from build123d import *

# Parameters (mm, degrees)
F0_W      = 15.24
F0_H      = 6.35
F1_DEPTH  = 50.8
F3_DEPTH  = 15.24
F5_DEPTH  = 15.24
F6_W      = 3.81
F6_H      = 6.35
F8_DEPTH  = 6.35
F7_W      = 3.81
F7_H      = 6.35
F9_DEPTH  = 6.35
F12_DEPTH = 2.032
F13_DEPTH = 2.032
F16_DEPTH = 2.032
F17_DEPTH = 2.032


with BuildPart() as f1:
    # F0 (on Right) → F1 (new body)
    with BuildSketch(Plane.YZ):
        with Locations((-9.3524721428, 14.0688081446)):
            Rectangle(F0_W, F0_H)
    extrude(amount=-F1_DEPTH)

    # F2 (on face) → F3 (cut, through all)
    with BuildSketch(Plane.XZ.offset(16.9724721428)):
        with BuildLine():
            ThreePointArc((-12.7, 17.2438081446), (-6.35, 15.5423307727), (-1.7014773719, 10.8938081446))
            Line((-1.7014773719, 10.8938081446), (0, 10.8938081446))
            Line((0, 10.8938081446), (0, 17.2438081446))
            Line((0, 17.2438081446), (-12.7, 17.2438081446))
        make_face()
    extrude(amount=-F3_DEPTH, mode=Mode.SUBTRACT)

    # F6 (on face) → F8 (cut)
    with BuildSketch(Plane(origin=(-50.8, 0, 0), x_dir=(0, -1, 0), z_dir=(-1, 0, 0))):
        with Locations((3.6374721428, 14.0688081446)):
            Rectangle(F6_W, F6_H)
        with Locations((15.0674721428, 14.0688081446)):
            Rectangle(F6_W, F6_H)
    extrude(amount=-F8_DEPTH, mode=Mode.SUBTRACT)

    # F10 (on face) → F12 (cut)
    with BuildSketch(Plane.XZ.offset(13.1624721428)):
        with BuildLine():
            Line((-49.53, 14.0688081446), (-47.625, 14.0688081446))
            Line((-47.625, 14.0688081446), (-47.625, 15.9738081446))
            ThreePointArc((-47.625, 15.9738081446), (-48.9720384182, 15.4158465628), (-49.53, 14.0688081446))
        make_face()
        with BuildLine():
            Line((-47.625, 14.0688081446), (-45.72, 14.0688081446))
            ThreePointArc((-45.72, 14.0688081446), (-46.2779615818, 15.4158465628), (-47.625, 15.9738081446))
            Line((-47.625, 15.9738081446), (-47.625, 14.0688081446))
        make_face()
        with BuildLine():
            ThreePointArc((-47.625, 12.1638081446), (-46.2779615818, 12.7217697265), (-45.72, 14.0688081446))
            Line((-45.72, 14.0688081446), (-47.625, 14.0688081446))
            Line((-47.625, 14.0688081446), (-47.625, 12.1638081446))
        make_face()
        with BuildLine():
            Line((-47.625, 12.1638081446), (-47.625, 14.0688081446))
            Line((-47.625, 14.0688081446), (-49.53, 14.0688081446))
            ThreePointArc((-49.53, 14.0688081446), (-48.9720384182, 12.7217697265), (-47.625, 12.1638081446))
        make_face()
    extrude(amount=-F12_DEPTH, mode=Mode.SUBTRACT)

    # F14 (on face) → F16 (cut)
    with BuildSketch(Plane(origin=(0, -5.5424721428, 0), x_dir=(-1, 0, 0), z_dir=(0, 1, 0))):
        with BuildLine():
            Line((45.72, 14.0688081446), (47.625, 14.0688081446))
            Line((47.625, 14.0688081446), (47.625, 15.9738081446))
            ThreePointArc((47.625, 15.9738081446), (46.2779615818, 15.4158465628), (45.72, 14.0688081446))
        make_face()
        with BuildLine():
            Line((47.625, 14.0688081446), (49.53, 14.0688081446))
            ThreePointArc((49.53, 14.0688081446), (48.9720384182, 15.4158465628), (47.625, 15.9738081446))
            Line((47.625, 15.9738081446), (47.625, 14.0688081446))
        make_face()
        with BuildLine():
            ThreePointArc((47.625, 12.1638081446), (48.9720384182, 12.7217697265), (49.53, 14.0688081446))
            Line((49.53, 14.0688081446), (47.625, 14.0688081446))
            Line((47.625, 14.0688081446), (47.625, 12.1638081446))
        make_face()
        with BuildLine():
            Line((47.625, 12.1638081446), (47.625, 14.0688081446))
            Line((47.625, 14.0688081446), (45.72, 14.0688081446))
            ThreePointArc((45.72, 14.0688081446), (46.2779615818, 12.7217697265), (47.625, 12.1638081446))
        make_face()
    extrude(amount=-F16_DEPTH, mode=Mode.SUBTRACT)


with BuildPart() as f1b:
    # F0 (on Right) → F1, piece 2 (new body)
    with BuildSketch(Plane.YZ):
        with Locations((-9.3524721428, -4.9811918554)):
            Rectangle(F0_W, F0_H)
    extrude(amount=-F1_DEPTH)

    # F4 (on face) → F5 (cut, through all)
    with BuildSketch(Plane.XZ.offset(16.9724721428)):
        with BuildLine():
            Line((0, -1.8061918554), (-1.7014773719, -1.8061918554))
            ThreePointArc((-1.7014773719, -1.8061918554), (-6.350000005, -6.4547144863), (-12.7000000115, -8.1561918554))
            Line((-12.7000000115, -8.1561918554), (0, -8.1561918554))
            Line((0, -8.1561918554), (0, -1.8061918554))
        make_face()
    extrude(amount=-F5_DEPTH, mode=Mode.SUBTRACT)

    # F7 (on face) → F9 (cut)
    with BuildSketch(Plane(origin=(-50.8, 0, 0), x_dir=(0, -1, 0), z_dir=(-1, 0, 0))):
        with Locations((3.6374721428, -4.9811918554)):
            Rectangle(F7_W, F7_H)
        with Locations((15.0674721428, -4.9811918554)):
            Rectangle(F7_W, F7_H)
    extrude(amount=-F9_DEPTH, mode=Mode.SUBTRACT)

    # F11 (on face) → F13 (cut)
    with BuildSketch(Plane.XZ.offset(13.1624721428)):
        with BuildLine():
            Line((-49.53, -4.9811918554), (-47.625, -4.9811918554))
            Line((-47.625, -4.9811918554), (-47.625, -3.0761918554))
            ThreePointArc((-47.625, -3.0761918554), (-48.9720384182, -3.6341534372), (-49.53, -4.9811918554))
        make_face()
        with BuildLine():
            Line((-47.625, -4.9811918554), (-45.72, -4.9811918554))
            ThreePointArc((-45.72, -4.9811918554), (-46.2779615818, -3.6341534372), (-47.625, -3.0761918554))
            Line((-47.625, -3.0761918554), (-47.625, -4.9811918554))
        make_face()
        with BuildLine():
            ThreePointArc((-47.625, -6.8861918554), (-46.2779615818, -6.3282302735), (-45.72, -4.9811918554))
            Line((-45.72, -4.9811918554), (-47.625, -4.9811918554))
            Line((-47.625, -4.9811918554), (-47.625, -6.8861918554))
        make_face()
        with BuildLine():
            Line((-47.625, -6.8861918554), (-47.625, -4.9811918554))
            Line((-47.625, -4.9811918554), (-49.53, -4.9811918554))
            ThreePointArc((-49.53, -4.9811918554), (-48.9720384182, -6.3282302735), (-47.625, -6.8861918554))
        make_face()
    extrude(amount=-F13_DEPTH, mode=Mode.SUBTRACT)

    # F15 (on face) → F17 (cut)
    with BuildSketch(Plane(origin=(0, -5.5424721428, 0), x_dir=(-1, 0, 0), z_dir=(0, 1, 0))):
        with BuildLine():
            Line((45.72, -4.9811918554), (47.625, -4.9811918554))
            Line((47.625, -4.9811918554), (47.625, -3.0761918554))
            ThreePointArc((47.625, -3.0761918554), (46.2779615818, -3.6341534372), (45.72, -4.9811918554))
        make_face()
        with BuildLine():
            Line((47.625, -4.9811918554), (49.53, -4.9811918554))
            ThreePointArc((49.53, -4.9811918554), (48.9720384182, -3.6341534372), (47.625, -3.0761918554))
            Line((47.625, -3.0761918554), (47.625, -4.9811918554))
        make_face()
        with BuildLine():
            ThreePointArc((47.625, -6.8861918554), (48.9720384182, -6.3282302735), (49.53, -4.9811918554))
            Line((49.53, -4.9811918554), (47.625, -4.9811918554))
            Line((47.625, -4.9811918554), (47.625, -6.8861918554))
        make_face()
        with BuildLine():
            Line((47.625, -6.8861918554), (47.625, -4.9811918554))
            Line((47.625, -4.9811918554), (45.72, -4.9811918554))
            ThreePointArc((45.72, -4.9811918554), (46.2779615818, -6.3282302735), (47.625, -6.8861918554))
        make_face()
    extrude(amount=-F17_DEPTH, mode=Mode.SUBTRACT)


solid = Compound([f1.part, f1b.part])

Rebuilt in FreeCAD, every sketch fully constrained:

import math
import FreeCAD as App
import Part
import Sketcher

V = App.Vector
Q = App.Units.Quantity

doc = App.newDocument("Part")
body = doc.addObject("PartDesign::Body", "Body")

sketch1 = body.newObject("Sketcher::SketchObject", "Sketch")
sketch1.AttachmentSupport = (doc.getObject("YZ_Plane"), [""])
sketch1.MapMode = "FlatFace"
sketch1.addGeometry(Part.LineSegment(V(-17, 17, 0), V(-17, 11, 0)), False)
sketch1.addGeometry(Part.LineSegment(V(-17, 11, 0), V(-2, 11, 0)), False)
sketch1.addGeometry(Part.LineSegment(V(-2, 11, 0), V(-2, 17, 0)), False)
sketch1.addGeometry(Part.LineSegment(V(-2, 17, 0), V(-17, 17, 0)), False)
sketch1.addConstraint(Sketcher.Constraint("Coincident", 0, 2, 1, 1))
sketch1.addConstraint(Sketcher.Constraint("Coincident", 1, 2, 2, 1))
sketch1.addConstraint(Sketcher.Constraint("Coincident", 2, 2, 3, 1))
sketch1.addConstraint(Sketcher.Constraint("Coincident", 3, 2, 0, 1))
sketch1.addConstraint(Sketcher.Constraint("Vertical", 0))
sketch1.addConstraint(Sketcher.Constraint("Horizontal", 1))
sketch1.addConstraint(Sketcher.Constraint("Vertical", 2))
sketch1.addConstraint(Sketcher.Constraint("Horizontal", 3))
sketch1.addConstraint(Sketcher.Constraint("DistanceX", 1, 1, 1, 2, Q("0.6 in")))
sketch1.addConstraint(Sketcher.Constraint("DistanceY", 0, 2, 0, 1, Q("0.25 in")))
sketch1.addConstraint(Sketcher.Constraint("DistanceY", -1, 1, 0, 2, Q("10.893808 mm")))
sketch1.addConstraint(Sketcher.Constraint("DistanceX", 0, 2, -1, 1, Q("16.972472 mm")))
pad1 = body.newObject("PartDesign::Pad", "Pad")
pad1.Profile = sketch1
pad1.Length = Q("2 in")
pad1.Reversed = True

sketch2 = body.newObject("Sketcher::SketchObject", "Sketch001")
sketch2.AttachmentSupport = (doc.getObject("XZ_Plane"), [""])
sketch2.MapMode = "FlatFace"
sketch2.AttachmentOffset = App.Placement(V(0, 0, 16.972472), App.Rotation())
sketch2.addGeometry(Part.ArcOfCircle(Part.Circle(V(-12.7, 4.5, 0), V(0, 0, 1), 12.7), math.radians(30), math.radians(90)), False)
sketch2.addGeometry(Part.LineSegment(V(-1.7, 10.9, 0), V(0, 10.9, 0)), False)
sketch2.addGeometry(Part.LineSegment(V(0, 10.9, 0), V(0, 17.2, 0)), False)
sketch2.addGeometry(Part.LineSegment(V(0, 17.2, 0), V(-12.7, 17.2, 0)), False)
sketch2.addConstraint(Sketcher.Constraint("Coincident", 0, 1, 1, 1))
sketch2.addConstraint(Sketcher.Constraint("Coincident", 1, 2, 2, 1))
sketch2.addConstraint(Sketcher.Constraint("Coincident", 2, 2, 3, 1))
sketch2.addConstraint(Sketcher.Constraint("Tangent", 3, 2, 0, 2))
sketch2.addConstraint(Sketcher.Constraint("Horizontal", 1))
sketch2.addConstraint(Sketcher.Constraint("Vertical", 2))
sketch2.addConstraint(Sketcher.Constraint("Horizontal", 3))
sketch2.addConstraint(Sketcher.Constraint("PointOnObject", 1, 2, -2))
sketch2.addConstraint(Sketcher.Constraint("Radius", 0, Q("0.5 in")))
sketch2.addConstraint(Sketcher.Constraint("DistanceX", 3, 2, 3, 1, Q("0.5 in")))
sketch2.addConstraint(Sketcher.Constraint("DistanceY", 2, 1, 2, 2, Q("0.25 in")))
sketch2.addConstraint(Sketcher.Constraint("DistanceY", -1, 1, 0, 3, Q("4.543808 mm")))
pocket1 = body.newObject("PartDesign::Pocket", "Pocket")
pocket1.Profile = sketch2
pocket1.Type = "ThroughAll"

sketch3 = body.newObject("Sketcher::SketchObject", "Sketch002")
sketch3.AttachmentSupport = (doc.getObject("YZ_Plane"), [""])
sketch3.MapMode = "FlatFace"
sketch3.AttachmentOffset = App.Placement(V(0, 0, -2 * 25.4), App.Rotation())
sketch3.addGeometry(Part.LineSegment(V(-1.7, 17.2, 0), V(-1.7, 10.9, 0)), False)
sketch3.addGeometry(Part.LineSegment(V(-1.7, 10.9, 0), V(-5.5, 10.9, 0)), False)
sketch3.addGeometry(Part.LineSegment(V(-5.5, 10.9, 0), V(-5.5, 17.2, 0)), False)
sketch3.addGeometry(Part.LineSegment(V(-5.5, 17.2, 0), V(-1.7, 17.2, 0)), False)
sketch3.addGeometry(Part.LineSegment(V(-13.2, 17.2, 0), V(-13.2, 10.9, 0)), False)
sketch3.addGeometry(Part.LineSegment(V(-13.2, 10.9, 0), V(-17, 10.9, 0)), False)
sketch3.addGeometry(Part.LineSegment(V(-17, 10.9, 0), V(-17, 17.2, 0)), False)
sketch3.addGeometry(Part.LineSegment(V(-17, 17.2, 0), V(-13.2, 17.2, 0)), False)
sketch3.addConstraint(Sketcher.Constraint("Coincident", 0, 2, 1, 1))
sketch3.addConstraint(Sketcher.Constraint("Coincident", 1, 2, 2, 1))
sketch3.addConstraint(Sketcher.Constraint("Coincident", 2, 2, 3, 1))
sketch3.addConstraint(Sketcher.Constraint("Coincident", 3, 2, 0, 1))
sketch3.addConstraint(Sketcher.Constraint("Coincident", 4, 2, 5, 1))
sketch3.addConstraint(Sketcher.Constraint("Coincident", 5, 2, 6, 1))
sketch3.addConstraint(Sketcher.Constraint("Coincident", 6, 2, 7, 1))
sketch3.addConstraint(Sketcher.Constraint("Coincident", 7, 2, 4, 1))
sketch3.addConstraint(Sketcher.Constraint("Vertical", 0))
sketch3.addConstraint(Sketcher.Constraint("Horizontal", 1))
sketch3.addConstraint(Sketcher.Constraint("Vertical", 2))
sketch3.addConstraint(Sketcher.Constraint("Horizontal", 3))
sketch3.addConstraint(Sketcher.Constraint("Vertical", 4))
sketch3.addConstraint(Sketcher.Constraint("Horizontal", 5))
sketch3.addConstraint(Sketcher.Constraint("Vertical", 6))
sketch3.addConstraint(Sketcher.Constraint("Horizontal", 7))
sketch3.addConstraint(Sketcher.Constraint("Horizontal", 1, 2, 4, 2))
sketch3.addConstraint(Sketcher.Constraint("Horizontal", 3, 2, 6, 2))
sketch3.addConstraint(Sketcher.Constraint("Equal", 3, 5))
sketch3.addConstraint(Sketcher.Constraint("DistanceX", 1, 2, 1, 1, Q("0.15 in")))
sketch3.addConstraint(Sketcher.Constraint("DistanceY", 0, 2, 0, 1, Q("0.25 in")))
sketch3.addConstraint(Sketcher.Constraint("DistanceX", 4, 2, 1, 2, Q("0.3 in")))
sketch3.addConstraint(Sketcher.Constraint("DistanceY", -1, 1, 0, 2, Q("10.893808 mm")))
sketch3.addConstraint(Sketcher.Constraint("DistanceX", 0, 2, -1, 1, Q("1.732472 mm")))
pocket2 = body.newObject("PartDesign::Pocket", "Pocket001")
pocket2.Profile = sketch3
pocket2.Length = Q("0.25 in")
pocket2.Reversed = True

sketch4 = body.newObject("Sketcher::SketchObject", "Sketch003")
sketch4.AttachmentSupport = (doc.getObject("XZ_Plane"), [""])
sketch4.MapMode = "FlatFace"
sketch4.AttachmentOffset = App.Placement(V(0, 0, 13.162472), App.Rotation())
sketch4.addGeometry(Part.ArcOfCircle(Part.Circle(V(-47.6, 14.1, 0), V(0, 0, 1), 1.9), math.radians(-90), math.radians(0)), False)
sketch4.addGeometry(Part.ArcOfCircle(Part.Circle(V(-47.6, 14.1, 0), V(0, 0, 1), 1.9), math.radians(0), math.radians(90)), False)
sketch4.addGeometry(Part.ArcOfCircle(Part.Circle(V(-47.6, 14.1, 0), V(0, 0, 1), 1.9), math.radians(90), math.radians(180)), False)
sketch4.addGeometry(Part.ArcOfCircle(Part.Circle(V(-47.6, 14.1, 0), V(0, 0, 1), 1.9), math.radians(180), math.radians(270)), False)
sketch4.addConstraint(Sketcher.Constraint("Tangent", 0, 2, 1, 1))
sketch4.addConstraint(Sketcher.Constraint("Tangent", 1, 2, 2, 1))
sketch4.addConstraint(Sketcher.Constraint("Tangent", 2, 2, 3, 1))
sketch4.addConstraint(Sketcher.Constraint("Tangent", 3, 2, 0, 1))
sketch4.addConstraint(Sketcher.Constraint("Equal", 0, 1))
sketch4.addConstraint(Sketcher.Constraint("Horizontal", 3, 3, 0, 2))
sketch4.addConstraint(Sketcher.Constraint("Horizontal", 0, 2, 2, 2))
sketch4.addConstraint(Sketcher.Constraint("Vertical", 3, 3, 1, 2))
sketch4.addConstraint(Sketcher.Constraint("Vertical", 1, 2, 3, 2))
sketch4.addConstraint(Sketcher.Constraint("Radius", 0, Q("0.075 in")))
sketch4.addConstraint(Sketcher.Constraint("DistanceX", 0, 2, -1, 1, Q("1.8 in")))
sketch4.addConstraint(Sketcher.Constraint("DistanceY", -1, 1, 0, 3, Q("14.068808 mm")))
pocket3 = body.newObject("PartDesign::Pocket", "Pocket002")
pocket3.Profile = sketch4
pocket3.Length = Q("0.08 in")

sketch5 = body.newObject("Sketcher::SketchObject", "Sketch004")
sketch5.AttachmentSupport = (doc.getObject("XZ_Plane"), [""])
sketch5.MapMode = "FlatFace"
sketch5.AttachmentOffset = App.Placement(V(0, 0, 5.542472), App.Rotation())
sketch5.addGeometry(Part.ArcOfCircle(Part.Circle(V(-47.6, 14.1, 0), V(0, 0, 1), 1.9), math.radians(180), math.radians(270)), False)
sketch5.addGeometry(Part.ArcOfCircle(Part.Circle(V(-47.6, 14.1, 0), V(0, 0, 1), 1.9), math.radians(90), math.radians(180)), False)
sketch5.addGeometry(Part.ArcOfCircle(Part.Circle(V(-47.6, 14.1, 0), V(0, 0, 1), 1.9), math.radians(0), math.radians(90)), False)
sketch5.addGeometry(Part.ArcOfCircle(Part.Circle(V(-47.6, 14.1, 0), V(0, 0, 1), 1.9), math.radians(-90), math.radians(0)), False)
sketch5.addConstraint(Sketcher.Constraint("Tangent", 0, 1, 1, 2))
sketch5.addConstraint(Sketcher.Constraint("Tangent", 1, 1, 2, 2))
sketch5.addConstraint(Sketcher.Constraint("Tangent", 2, 1, 3, 2))
sketch5.addConstraint(Sketcher.Constraint("Tangent", 3, 1, 0, 2))
sketch5.addConstraint(Sketcher.Constraint("Equal", 0, 1))
sketch5.addConstraint(Sketcher.Constraint("Horizontal", 3, 3, 0, 1))
sketch5.addConstraint(Sketcher.Constraint("Horizontal", 0, 1, 2, 1))
sketch5.addConstraint(Sketcher.Constraint("Vertical", 3, 3, 1, 1))
sketch5.addConstraint(Sketcher.Constraint("Vertical", 1, 1, 3, 1))
sketch5.addConstraint(Sketcher.Constraint("Radius", 0, Q("0.075 in")))
sketch5.addConstraint(Sketcher.Constraint("DistanceX", 2, 1, -1, 1, Q("1.8 in")))
sketch5.addConstraint(Sketcher.Constraint("DistanceY", -1, 1, 0, 3, Q("14.068808 mm")))
pocket4 = body.newObject("PartDesign::Pocket", "Pocket003")
pocket4.Profile = sketch5
pocket4.Length = Q("0.08 in")
pocket4.Reversed = True
body2 = doc.addObject("PartDesign::Body", "Body001")

sketch6 = body2.newObject("Sketcher::SketchObject", "Sketch005")
sketch6.AttachmentSupport = (doc.getObject("YZ_Plane001"), [""])
sketch6.MapMode = "FlatFace"
sketch6.addGeometry(Part.LineSegment(V(-17, -2, 0), V(-17, -8, 0)), False)
sketch6.addGeometry(Part.LineSegment(V(-17, -8, 0), V(-2, -8, 0)), False)
sketch6.addGeometry(Part.LineSegment(V(-2, -8, 0), V(-2, -2, 0)), False)
sketch6.addGeometry(Part.LineSegment(V(-2, -2, 0), V(-17, -2, 0)), False)
sketch6.addConstraint(Sketcher.Constraint("Coincident", 0, 2, 1, 1))
sketch6.addConstraint(Sketcher.Constraint("Coincident", 1, 2, 2, 1))
sketch6.addConstraint(Sketcher.Constraint("Coincident", 2, 2, 3, 1))
sketch6.addConstraint(Sketcher.Constraint("Coincident", 3, 2, 0, 1))
sketch6.addConstraint(Sketcher.Constraint("Vertical", 0))
sketch6.addConstraint(Sketcher.Constraint("Horizontal", 1))
sketch6.addConstraint(Sketcher.Constraint("Vertical", 2))
sketch6.addConstraint(Sketcher.Constraint("Horizontal", 3))
sketch6.addConstraint(Sketcher.Constraint("DistanceX", 1, 1, 1, 2, Q("0.6 in")))
sketch6.addConstraint(Sketcher.Constraint("DistanceY", 0, 2, 0, 1, Q("0.25 in")))
sketch6.addConstraint(Sketcher.Constraint("DistanceY", 0, 2, -1, 1, Q("8.156192 mm")))
sketch6.addConstraint(Sketcher.Constraint("DistanceX", 0, 2, -1, 1, Q("16.972472 mm")))
pad2 = body2.newObject("PartDesign::Pad", "Pad001")
pad2.Profile = sketch6
pad2.Length = Q("2 in")
pad2.Reversed = True

sketch7 = body2.newObject("Sketcher::SketchObject", "Sketch006")
sketch7.AttachmentSupport = (doc.getObject("XZ_Plane001"), [""])
sketch7.MapMode = "FlatFace"
sketch7.AttachmentOffset = App.Placement(V(0, 0, 16.972472), App.Rotation())
sketch7.addGeometry(Part.LineSegment(V(0, -1.8, 0), V(-1.7, -1.8, 0)), False)
sketch7.addGeometry(Part.ArcOfCircle(Part.Circle(V(-12.7, 4.5, 0), V(0, 0, 1), 12.7), math.radians(-90), math.radians(-30)), False)
sketch7.addGeometry(Part.LineSegment(V(-12.7, -8.2, 0), V(0, -8.2, 0)), False)
sketch7.addGeometry(Part.LineSegment(V(0, -8.2, 0), V(0, -1.8, 0)), False)
sketch7.addConstraint(Sketcher.Constraint("Coincident", 0, 2, 1, 2))
sketch7.addConstraint(Sketcher.Constraint("Tangent", 1, 1, 2, 1))
sketch7.addConstraint(Sketcher.Constraint("Coincident", 2, 2, 3, 1))
sketch7.addConstraint(Sketcher.Constraint("Coincident", 3, 2, 0, 1))
sketch7.addConstraint(Sketcher.Constraint("Horizontal", 0))
sketch7.addConstraint(Sketcher.Constraint("Horizontal", 2))
sketch7.addConstraint(Sketcher.Constraint("Vertical", 3))
sketch7.addConstraint(Sketcher.Constraint("PointOnObject", 2, 2, -2))
sketch7.addConstraint(Sketcher.Constraint("Radius", 1, Q("0.5 in")))
sketch7.addConstraint(Sketcher.Constraint("DistanceX", 2, 1, 2, 2, Q("0.5 in")))
sketch7.addConstraint(Sketcher.Constraint("DistanceY", 3, 1, 3, 2, Q("0.25 in")))
sketch7.addConstraint(Sketcher.Constraint("DistanceY", -1, 1, 1, 3, Q("4.543808 mm")))
pocket5 = body2.newObject("PartDesign::Pocket", "Pocket004")
pocket5.Profile = sketch7
pocket5.Type = "ThroughAll"

sketch8 = body2.newObject("Sketcher::SketchObject", "Sketch007")
sketch8.AttachmentSupport = (doc.getObject("YZ_Plane001"), [""])
sketch8.MapMode = "FlatFace"
sketch8.AttachmentOffset = App.Placement(V(0, 0, -2 * 25.4), App.Rotation())
sketch8.addGeometry(Part.LineSegment(V(-1.7, -1.8, 0), V(-1.7, -8.2, 0)), False)
sketch8.addGeometry(Part.LineSegment(V(-1.7, -8.2, 0), V(-5.5, -8.2, 0)), False)
sketch8.addGeometry(Part.LineSegment(V(-5.5, -8.2, 0), V(-5.5, -1.8, 0)), False)
sketch8.addGeometry(Part.LineSegment(V(-5.5, -1.8, 0), V(-1.7, -1.8, 0)), False)
sketch8.addGeometry(Part.LineSegment(V(-13.2, -1.8, 0), V(-13.2, -8.2, 0)), False)
sketch8.addGeometry(Part.LineSegment(V(-13.2, -8.2, 0), V(-17, -8.2, 0)), False)
sketch8.addGeometry(Part.LineSegment(V(-17, -8.2, 0), V(-17, -1.8, 0)), False)
sketch8.addGeometry(Part.LineSegment(V(-17, -1.8, 0), V(-13.2, -1.8, 0)), False)
sketch8.addConstraint(Sketcher.Constraint("Coincident", 0, 2, 1, 1))
sketch8.addConstraint(Sketcher.Constraint("Coincident", 1, 2, 2, 1))
sketch8.addConstraint(Sketcher.Constraint("Coincident", 2, 2, 3, 1))
sketch8.addConstraint(Sketcher.Constraint("Coincident", 3, 2, 0, 1))
sketch8.addConstraint(Sketcher.Constraint("Coincident", 4, 2, 5, 1))
sketch8.addConstraint(Sketcher.Constraint("Coincident", 5, 2, 6, 1))
sketch8.addConstraint(Sketcher.Constraint("Coincident", 6, 2, 7, 1))
sketch8.addConstraint(Sketcher.Constraint("Coincident", 7, 2, 4, 1))
sketch8.addConstraint(Sketcher.Constraint("Vertical", 0))
sketch8.addConstraint(Sketcher.Constraint("Horizontal", 1))
sketch8.addConstraint(Sketcher.Constraint("Vertical", 2))
sketch8.addConstraint(Sketcher.Constraint("Horizontal", 3))
sketch8.addConstraint(Sketcher.Constraint("Vertical", 4))
sketch8.addConstraint(Sketcher.Constraint("Horizontal", 5))
sketch8.addConstraint(Sketcher.Constraint("Vertical", 6))
sketch8.addConstraint(Sketcher.Constraint("Horizontal", 7))
sketch8.addConstraint(Sketcher.Constraint("Horizontal", 1, 2, 4, 2))
sketch8.addConstraint(Sketcher.Constraint("Horizontal", 3, 2, 6, 2))
sketch8.addConstraint(Sketcher.Constraint("Equal", 3, 5))
sketch8.addConstraint(Sketcher.Constraint("DistanceX", 1, 2, 1, 1, Q("0.15 in")))
sketch8.addConstraint(Sketcher.Constraint("DistanceY", 0, 2, 0, 1, Q("0.25 in")))
sketch8.addConstraint(Sketcher.Constraint("DistanceX", 4, 2, 1, 2, Q("0.3 in")))
sketch8.addConstraint(Sketcher.Constraint("DistanceY", 0, 2, -1, 1, Q("8.156192 mm")))
sketch8.addConstraint(Sketcher.Constraint("DistanceX", 0, 2, -1, 1, Q("1.732472 mm")))
pocket6 = body2.newObject("PartDesign::Pocket", "Pocket005")
pocket6.Profile = sketch8
pocket6.Length = Q("0.25 in")
pocket6.Reversed = True

sketch9 = body2.newObject("Sketcher::SketchObject", "Sketch008")
sketch9.AttachmentSupport = (doc.getObject("XZ_Plane001"), [""])
sketch9.MapMode = "FlatFace"
sketch9.AttachmentOffset = App.Placement(V(0, 0, 13.162472), App.Rotation())
sketch9.addGeometry(Part.ArcOfCircle(Part.Circle(V(-47.6, -5, 0), V(0, 0, 1), 1.9), math.radians(-90), math.radians(0)), False)
sketch9.addGeometry(Part.ArcOfCircle(Part.Circle(V(-47.6, -5, 0), V(0, 0, 1), 1.9), math.radians(0), math.radians(90)), False)
sketch9.addGeometry(Part.ArcOfCircle(Part.Circle(V(-47.6, -5, 0), V(0, 0, 1), 1.9), math.radians(90), math.radians(180)), False)
sketch9.addGeometry(Part.ArcOfCircle(Part.Circle(V(-47.6, -5, 0), V(0, 0, 1), 1.9), math.radians(180), math.radians(270)), False)
sketch9.addConstraint(Sketcher.Constraint("Tangent", 0, 2, 1, 1))
sketch9.addConstraint(Sketcher.Constraint("Tangent", 1, 2, 2, 1))
sketch9.addConstraint(Sketcher.Constraint("Tangent", 2, 2, 3, 1))
sketch9.addConstraint(Sketcher.Constraint("Tangent", 3, 2, 0, 1))
sketch9.addConstraint(Sketcher.Constraint("Equal", 0, 1))
sketch9.addConstraint(Sketcher.Constraint("Horizontal", 3, 3, 0, 2))
sketch9.addConstraint(Sketcher.Constraint("Horizontal", 0, 2, 2, 2))
sketch9.addConstraint(Sketcher.Constraint("Vertical", 3, 3, 1, 2))
sketch9.addConstraint(Sketcher.Constraint("Vertical", 1, 2, 3, 2))
sketch9.addConstraint(Sketcher.Constraint("Radius", 0, Q("0.075 in")))
sketch9.addConstraint(Sketcher.Constraint("DistanceX", 0, 2, -1, 1, Q("1.8 in")))
sketch9.addConstraint(Sketcher.Constraint("DistanceY", 0, 3, -1, 1, Q("4.981192 mm")))
pocket7 = body2.newObject("PartDesign::Pocket", "Pocket006")
pocket7.Profile = sketch9
pocket7.Length = Q("0.08 in")

sketch10 = body2.newObject("Sketcher::SketchObject", "Sketch009")
sketch10.AttachmentSupport = (doc.getObject("XZ_Plane001"), [""])
sketch10.MapMode = "FlatFace"
sketch10.AttachmentOffset = App.Placement(V(0, 0, 5.542472), App.Rotation())
sketch10.addGeometry(Part.ArcOfCircle(Part.Circle(V(-47.6, -5, 0), V(0, 0, 1), 1.9), math.radians(180), math.radians(270)), False)
sketch10.addGeometry(Part.ArcOfCircle(Part.Circle(V(-47.6, -5, 0), V(0, 0, 1), 1.9), math.radians(90), math.radians(180)), False)
sketch10.addGeometry(Part.ArcOfCircle(Part.Circle(V(-47.6, -5, 0), V(0, 0, 1), 1.9), math.radians(0), math.radians(90)), False)
sketch10.addGeometry(Part.ArcOfCircle(Part.Circle(V(-47.6, -5, 0), V(0, 0, 1), 1.9), math.radians(-90), math.radians(0)), False)
sketch10.addConstraint(Sketcher.Constraint("Tangent", 0, 1, 1, 2))
sketch10.addConstraint(Sketcher.Constraint("Tangent", 1, 1, 2, 2))
sketch10.addConstraint(Sketcher.Constraint("Tangent", 2, 1, 3, 2))
sketch10.addConstraint(Sketcher.Constraint("Tangent", 3, 1, 0, 2))
sketch10.addConstraint(Sketcher.Constraint("Equal", 0, 1))
sketch10.addConstraint(Sketcher.Constraint("Horizontal", 3, 3, 0, 1))
sketch10.addConstraint(Sketcher.Constraint("Horizontal", 0, 1, 2, 1))
sketch10.addConstraint(Sketcher.Constraint("Vertical", 3, 3, 1, 1))
sketch10.addConstraint(Sketcher.Constraint("Vertical", 1, 1, 3, 1))
sketch10.addConstraint(Sketcher.Constraint("Radius", 0, Q("0.075 in")))
sketch10.addConstraint(Sketcher.Constraint("DistanceX", 2, 1, -1, 1, Q("1.8 in")))
sketch10.addConstraint(Sketcher.Constraint("DistanceY", 0, 3, -1, 1, Q("4.981192 mm")))
pocket8 = body2.newObject("PartDesign::Pocket", "Pocket007")
pocket8.Profile = sketch10
pocket8.Length = Q("0.08 in")
pocket8.Reversed = True

doc.recompute()
